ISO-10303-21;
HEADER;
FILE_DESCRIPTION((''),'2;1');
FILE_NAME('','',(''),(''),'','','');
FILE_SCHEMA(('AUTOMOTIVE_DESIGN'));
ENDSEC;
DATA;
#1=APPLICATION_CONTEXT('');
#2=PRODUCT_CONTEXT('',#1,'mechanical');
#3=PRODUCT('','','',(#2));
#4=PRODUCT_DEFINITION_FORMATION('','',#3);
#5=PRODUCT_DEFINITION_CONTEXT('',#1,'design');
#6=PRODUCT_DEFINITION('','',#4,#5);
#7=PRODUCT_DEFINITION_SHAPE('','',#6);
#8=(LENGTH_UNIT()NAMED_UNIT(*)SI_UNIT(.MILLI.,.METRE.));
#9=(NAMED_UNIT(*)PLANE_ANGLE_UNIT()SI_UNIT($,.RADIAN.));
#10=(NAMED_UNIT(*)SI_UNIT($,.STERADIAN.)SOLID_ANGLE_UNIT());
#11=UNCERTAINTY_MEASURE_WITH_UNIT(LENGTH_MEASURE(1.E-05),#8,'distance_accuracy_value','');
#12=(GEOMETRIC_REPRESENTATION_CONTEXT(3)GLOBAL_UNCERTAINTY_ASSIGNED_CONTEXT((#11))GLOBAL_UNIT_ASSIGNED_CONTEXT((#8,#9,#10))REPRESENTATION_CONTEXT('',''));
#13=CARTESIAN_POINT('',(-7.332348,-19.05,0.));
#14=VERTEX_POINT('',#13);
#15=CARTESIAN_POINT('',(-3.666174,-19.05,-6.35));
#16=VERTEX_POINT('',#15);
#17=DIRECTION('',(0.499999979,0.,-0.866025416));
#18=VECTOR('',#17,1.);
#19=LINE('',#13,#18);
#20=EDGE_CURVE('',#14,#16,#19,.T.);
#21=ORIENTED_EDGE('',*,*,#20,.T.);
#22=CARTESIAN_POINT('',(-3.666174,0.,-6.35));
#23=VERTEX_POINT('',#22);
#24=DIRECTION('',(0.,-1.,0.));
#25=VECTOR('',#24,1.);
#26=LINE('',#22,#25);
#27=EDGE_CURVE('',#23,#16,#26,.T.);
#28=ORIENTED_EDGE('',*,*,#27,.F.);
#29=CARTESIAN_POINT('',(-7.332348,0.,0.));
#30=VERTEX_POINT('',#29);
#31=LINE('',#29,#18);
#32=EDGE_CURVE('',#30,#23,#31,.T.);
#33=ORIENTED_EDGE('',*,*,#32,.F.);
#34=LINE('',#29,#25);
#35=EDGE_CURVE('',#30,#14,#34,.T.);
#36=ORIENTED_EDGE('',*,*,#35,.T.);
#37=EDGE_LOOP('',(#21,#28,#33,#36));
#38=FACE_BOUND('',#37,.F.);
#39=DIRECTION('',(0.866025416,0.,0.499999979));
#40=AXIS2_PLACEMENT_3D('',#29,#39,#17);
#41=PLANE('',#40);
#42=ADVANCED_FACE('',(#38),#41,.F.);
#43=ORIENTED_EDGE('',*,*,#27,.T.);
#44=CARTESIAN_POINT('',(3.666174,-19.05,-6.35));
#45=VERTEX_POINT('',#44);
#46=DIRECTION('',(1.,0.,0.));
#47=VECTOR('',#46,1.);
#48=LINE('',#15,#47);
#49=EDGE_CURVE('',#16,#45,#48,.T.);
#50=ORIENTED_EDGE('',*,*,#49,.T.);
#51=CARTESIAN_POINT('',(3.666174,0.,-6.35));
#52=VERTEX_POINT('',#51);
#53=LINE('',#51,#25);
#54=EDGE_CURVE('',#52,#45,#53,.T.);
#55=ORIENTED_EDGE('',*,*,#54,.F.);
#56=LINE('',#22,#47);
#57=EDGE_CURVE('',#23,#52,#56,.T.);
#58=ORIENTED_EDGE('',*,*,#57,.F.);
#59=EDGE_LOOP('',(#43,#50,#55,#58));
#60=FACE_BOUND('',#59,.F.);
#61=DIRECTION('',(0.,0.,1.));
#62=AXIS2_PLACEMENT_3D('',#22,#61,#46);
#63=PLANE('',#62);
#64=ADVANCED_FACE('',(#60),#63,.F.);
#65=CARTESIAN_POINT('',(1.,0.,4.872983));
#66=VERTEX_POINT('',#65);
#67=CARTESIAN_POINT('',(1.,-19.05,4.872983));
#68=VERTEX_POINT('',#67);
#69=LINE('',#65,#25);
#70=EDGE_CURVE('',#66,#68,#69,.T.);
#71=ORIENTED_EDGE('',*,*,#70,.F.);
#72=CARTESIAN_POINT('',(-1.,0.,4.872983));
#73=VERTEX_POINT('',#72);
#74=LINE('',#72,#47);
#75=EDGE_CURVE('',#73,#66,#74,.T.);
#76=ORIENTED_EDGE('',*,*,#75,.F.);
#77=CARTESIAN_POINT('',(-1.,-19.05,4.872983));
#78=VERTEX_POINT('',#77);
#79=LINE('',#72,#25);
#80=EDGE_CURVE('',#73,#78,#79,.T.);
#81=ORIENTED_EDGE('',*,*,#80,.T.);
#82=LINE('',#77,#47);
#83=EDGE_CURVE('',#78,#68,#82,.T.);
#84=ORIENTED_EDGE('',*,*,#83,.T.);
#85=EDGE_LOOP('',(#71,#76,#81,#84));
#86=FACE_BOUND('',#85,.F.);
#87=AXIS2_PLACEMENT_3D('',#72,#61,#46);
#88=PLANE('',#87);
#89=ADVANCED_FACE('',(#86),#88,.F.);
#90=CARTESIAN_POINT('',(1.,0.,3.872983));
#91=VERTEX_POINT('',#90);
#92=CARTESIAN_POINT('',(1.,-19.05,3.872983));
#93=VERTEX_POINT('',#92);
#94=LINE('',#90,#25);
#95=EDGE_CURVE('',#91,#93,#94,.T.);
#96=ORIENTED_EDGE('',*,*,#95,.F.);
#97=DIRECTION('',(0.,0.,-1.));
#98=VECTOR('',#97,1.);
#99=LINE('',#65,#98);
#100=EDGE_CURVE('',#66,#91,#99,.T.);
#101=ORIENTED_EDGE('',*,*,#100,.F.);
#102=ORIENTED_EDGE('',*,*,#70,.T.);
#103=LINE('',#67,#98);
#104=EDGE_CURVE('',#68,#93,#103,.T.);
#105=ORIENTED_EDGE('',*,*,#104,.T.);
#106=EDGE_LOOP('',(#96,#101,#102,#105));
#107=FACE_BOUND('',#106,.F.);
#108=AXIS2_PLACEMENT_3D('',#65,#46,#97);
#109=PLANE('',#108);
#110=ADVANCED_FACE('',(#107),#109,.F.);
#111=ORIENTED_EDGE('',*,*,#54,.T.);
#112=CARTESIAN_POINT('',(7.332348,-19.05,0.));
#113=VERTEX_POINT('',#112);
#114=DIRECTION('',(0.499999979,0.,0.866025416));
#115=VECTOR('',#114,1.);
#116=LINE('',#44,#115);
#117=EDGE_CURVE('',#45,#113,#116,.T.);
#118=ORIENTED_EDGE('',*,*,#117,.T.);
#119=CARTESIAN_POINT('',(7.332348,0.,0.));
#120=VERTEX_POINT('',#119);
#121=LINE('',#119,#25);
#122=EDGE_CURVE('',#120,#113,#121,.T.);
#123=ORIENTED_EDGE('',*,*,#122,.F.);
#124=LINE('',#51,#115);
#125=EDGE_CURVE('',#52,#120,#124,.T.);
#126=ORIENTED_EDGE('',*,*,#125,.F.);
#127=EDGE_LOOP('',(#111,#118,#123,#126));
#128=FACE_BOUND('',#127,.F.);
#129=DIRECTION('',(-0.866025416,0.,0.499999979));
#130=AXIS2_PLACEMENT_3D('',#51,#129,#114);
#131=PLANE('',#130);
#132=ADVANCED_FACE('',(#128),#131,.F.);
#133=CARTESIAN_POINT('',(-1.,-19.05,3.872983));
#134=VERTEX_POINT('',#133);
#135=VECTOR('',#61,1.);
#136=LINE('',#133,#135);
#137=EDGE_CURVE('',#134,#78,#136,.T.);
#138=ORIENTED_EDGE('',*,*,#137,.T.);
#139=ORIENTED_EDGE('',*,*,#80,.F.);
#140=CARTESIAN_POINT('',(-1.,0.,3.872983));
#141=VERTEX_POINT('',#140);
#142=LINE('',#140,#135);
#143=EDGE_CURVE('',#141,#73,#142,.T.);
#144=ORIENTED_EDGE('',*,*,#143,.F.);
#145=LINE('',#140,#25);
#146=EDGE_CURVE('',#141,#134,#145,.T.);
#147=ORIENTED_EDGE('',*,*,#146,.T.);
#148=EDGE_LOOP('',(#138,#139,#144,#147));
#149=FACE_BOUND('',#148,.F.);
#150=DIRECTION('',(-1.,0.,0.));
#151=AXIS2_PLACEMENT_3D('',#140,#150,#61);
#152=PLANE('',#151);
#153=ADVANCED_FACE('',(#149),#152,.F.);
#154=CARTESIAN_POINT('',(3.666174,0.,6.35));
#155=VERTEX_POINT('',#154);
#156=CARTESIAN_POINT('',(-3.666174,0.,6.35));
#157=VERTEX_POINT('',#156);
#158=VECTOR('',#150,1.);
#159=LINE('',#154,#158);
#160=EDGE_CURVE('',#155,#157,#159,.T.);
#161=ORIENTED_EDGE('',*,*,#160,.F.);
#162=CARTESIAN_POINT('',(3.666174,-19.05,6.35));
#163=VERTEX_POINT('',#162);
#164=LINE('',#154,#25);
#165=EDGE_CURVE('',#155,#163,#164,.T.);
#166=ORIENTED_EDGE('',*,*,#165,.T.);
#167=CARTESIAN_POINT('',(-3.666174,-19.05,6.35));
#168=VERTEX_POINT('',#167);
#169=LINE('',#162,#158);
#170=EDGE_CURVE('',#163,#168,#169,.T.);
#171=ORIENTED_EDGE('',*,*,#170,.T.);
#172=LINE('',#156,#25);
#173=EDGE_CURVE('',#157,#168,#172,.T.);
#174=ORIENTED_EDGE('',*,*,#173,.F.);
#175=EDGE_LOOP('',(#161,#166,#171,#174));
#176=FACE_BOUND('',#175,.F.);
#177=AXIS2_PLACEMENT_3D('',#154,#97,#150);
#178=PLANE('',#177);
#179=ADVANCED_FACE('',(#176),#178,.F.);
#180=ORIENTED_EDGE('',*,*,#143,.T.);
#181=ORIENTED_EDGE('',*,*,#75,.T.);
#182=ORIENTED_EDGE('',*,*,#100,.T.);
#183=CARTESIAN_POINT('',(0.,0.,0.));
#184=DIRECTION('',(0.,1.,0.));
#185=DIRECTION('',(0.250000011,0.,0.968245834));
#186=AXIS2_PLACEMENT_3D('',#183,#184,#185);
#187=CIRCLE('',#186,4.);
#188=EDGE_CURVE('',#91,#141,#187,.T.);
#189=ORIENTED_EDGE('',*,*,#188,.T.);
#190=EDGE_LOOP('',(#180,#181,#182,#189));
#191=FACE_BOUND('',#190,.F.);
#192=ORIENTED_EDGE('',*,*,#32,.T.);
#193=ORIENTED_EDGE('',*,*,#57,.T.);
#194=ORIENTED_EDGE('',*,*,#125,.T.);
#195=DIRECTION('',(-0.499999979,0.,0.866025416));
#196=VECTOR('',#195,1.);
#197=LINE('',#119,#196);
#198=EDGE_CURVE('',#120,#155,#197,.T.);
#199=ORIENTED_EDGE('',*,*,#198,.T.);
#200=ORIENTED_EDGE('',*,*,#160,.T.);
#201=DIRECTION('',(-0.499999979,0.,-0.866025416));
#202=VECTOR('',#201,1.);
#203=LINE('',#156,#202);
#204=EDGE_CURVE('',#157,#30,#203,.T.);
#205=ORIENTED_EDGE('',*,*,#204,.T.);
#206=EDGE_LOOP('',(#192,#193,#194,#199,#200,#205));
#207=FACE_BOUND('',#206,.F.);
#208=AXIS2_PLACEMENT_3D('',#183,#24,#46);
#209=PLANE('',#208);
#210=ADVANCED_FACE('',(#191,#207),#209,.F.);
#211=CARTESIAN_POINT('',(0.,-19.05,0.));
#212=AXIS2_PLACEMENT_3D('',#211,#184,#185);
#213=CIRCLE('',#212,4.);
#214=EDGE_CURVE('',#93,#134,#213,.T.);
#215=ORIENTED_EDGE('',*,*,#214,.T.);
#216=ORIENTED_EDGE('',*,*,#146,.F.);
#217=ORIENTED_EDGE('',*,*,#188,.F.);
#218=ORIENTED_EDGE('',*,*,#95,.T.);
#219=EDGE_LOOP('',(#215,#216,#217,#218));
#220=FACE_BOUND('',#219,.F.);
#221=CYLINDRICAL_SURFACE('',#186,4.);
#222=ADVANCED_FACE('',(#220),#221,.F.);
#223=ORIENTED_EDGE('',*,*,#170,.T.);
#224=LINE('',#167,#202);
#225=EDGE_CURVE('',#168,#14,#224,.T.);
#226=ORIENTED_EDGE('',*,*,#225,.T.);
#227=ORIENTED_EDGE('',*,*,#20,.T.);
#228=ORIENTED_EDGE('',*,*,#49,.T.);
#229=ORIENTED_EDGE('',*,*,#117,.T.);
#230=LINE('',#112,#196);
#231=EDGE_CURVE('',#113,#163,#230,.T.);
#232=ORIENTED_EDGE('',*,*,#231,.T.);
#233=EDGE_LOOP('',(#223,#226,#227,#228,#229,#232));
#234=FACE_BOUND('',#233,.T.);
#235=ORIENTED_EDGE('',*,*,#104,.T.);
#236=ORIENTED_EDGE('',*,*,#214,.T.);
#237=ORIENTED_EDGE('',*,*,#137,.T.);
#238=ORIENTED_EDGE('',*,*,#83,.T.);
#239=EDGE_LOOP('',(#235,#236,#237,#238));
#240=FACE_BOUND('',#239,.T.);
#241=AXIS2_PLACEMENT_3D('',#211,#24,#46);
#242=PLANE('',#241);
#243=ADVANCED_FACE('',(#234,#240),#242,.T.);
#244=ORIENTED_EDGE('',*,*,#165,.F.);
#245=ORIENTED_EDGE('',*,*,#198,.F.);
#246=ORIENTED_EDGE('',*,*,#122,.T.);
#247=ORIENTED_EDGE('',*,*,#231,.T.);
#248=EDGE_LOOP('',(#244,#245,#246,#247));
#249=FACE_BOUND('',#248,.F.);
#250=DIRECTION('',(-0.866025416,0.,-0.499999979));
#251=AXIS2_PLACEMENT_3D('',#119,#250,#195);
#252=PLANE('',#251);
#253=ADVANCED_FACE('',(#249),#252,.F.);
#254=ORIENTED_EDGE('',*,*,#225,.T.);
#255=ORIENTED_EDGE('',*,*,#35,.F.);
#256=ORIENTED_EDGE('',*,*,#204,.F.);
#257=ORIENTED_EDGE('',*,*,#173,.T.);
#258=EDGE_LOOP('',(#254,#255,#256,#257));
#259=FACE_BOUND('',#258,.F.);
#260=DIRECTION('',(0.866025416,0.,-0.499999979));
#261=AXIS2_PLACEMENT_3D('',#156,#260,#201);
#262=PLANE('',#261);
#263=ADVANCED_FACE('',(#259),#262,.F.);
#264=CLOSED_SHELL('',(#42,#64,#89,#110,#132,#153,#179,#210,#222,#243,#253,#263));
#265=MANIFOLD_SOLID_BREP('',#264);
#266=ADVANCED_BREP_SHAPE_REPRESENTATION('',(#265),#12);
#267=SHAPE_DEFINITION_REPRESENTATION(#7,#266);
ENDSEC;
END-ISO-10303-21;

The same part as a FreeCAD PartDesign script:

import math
import FreeCAD as App
import Part
import Sketcher
from FreeCAD import Vector
Q = App.Units.Quantity


def add_polygon(sketch, points):
    """Adds a closed chain of lines whose ends are joined by coincident constraints."""
    first, n = sketch.GeometryCount, len(points)
    for a, b in zip(points, points[1:] + points[:1]):
        sketch.addGeometry(Part.LineSegment(App.Vector(*a, 0), App.Vector(*b, 0)), False)
    for i in range(n):
        sketch.addConstraint(Sketcher.Constraint("Coincident", first + i, 2, first + (i + 1) % n, 1))

doc = App.newDocument("Part")
body = doc.addObject("PartDesign::Body", "Body")

# Sketch on XZ plane
sketch1 = body.newObject("Sketcher::SketchObject", "Sketch")
sketch1.AttachmentSupport = (doc.getObject("XZ_Plane"), [""])
sketch1.MapMode = "FlatFace"
add_polygon(sketch1, [(3.666174, 6.35), (-3.666174, 6.35), (-7.332348, 0), (-3.666174, -6.35), (3.666174, -6.35), (7.332348, 0)])  # lines 0-5
sketch1.addGeometry(Part.LineSegment(Vector(1, 4.872983, 0), Vector(1, 3.872983, 0)), False)  # 6
sketch1.addGeometry(Part.ArcOfCircle(Part.Circle(Vector(0, 0, 0), Vector(0, 0, 1), 4), math.radians(104.477513), math.radians(435.522487)), False)  # 7
sketch1.addGeometry(Part.LineSegment(Vector(-1, 3.872983, 0), Vector(-1, 4.872983, 0)), False)  # 8
sketch1.addGeometry(Part.LineSegment(Vector(-1, 4.872983, 0), Vector(1, 4.872983, 0)), False)  # 9
sketch1.addConstraint([
    Sketcher.Constraint("Coincident", 6, 2, 7, 2),
    Sketcher.Constraint("Coincident", 7, 1, 8, 1),
    Sketcher.Constraint("Coincident", 8, 2, 9, 1),
    Sketcher.Constraint("Coincident", 9, 2, 6, 1),
    Sketcher.Constraint("Horizontal", 0),
    Sketcher.Constraint("Horizontal", 3),
    Sketcher.Constraint("Vertical", 6),
    Sketcher.Constraint("Vertical", 8),
    Sketcher.Constraint("Horizontal", 9),
    Sketcher.Constraint("Coincident", 7, 3, -1, 1),
    Sketcher.Constraint("Symmetric", 0, 2, 3, 2, -1, 1),
    Sketcher.Constraint("Symmetric", 1, 2, 4, 2, -1, 1),
    Sketcher.Constraint("PointOnObject", 1, 2, -1),
    Sketcher.Constraint("Parallel", 2, 5),
    Sketcher.Constraint("Horizontal", 6, 2, 7, 1),
    Sketcher.Constraint("Vertical", 0, 2, 2, 2),
    Sketcher.Constraint("Radius", 7, Q("4 mm")),
    Sketcher.Constraint("DistanceX", 9, 1, 9, 2, Q("2 mm")),
    Sketcher.Constraint("DistanceY", 6, 2, 6, 1, Q("1 mm")),
    Sketcher.Constraint("Angle", 1, Q("-119.999999 deg")),
    Sketcher.Constraint("DistanceY", 2, 2, 0, 2, Q("12.7 mm")),
    Sketcher.Constraint("DistanceX", 0, 2, 0, 1, Q("7.332348 mm")),
])
pad1 = body.newObject("PartDesign::Pad", "Pad")
pad1.Profile = sketch1
pad1.Length = 19.05

doc.recompute()
